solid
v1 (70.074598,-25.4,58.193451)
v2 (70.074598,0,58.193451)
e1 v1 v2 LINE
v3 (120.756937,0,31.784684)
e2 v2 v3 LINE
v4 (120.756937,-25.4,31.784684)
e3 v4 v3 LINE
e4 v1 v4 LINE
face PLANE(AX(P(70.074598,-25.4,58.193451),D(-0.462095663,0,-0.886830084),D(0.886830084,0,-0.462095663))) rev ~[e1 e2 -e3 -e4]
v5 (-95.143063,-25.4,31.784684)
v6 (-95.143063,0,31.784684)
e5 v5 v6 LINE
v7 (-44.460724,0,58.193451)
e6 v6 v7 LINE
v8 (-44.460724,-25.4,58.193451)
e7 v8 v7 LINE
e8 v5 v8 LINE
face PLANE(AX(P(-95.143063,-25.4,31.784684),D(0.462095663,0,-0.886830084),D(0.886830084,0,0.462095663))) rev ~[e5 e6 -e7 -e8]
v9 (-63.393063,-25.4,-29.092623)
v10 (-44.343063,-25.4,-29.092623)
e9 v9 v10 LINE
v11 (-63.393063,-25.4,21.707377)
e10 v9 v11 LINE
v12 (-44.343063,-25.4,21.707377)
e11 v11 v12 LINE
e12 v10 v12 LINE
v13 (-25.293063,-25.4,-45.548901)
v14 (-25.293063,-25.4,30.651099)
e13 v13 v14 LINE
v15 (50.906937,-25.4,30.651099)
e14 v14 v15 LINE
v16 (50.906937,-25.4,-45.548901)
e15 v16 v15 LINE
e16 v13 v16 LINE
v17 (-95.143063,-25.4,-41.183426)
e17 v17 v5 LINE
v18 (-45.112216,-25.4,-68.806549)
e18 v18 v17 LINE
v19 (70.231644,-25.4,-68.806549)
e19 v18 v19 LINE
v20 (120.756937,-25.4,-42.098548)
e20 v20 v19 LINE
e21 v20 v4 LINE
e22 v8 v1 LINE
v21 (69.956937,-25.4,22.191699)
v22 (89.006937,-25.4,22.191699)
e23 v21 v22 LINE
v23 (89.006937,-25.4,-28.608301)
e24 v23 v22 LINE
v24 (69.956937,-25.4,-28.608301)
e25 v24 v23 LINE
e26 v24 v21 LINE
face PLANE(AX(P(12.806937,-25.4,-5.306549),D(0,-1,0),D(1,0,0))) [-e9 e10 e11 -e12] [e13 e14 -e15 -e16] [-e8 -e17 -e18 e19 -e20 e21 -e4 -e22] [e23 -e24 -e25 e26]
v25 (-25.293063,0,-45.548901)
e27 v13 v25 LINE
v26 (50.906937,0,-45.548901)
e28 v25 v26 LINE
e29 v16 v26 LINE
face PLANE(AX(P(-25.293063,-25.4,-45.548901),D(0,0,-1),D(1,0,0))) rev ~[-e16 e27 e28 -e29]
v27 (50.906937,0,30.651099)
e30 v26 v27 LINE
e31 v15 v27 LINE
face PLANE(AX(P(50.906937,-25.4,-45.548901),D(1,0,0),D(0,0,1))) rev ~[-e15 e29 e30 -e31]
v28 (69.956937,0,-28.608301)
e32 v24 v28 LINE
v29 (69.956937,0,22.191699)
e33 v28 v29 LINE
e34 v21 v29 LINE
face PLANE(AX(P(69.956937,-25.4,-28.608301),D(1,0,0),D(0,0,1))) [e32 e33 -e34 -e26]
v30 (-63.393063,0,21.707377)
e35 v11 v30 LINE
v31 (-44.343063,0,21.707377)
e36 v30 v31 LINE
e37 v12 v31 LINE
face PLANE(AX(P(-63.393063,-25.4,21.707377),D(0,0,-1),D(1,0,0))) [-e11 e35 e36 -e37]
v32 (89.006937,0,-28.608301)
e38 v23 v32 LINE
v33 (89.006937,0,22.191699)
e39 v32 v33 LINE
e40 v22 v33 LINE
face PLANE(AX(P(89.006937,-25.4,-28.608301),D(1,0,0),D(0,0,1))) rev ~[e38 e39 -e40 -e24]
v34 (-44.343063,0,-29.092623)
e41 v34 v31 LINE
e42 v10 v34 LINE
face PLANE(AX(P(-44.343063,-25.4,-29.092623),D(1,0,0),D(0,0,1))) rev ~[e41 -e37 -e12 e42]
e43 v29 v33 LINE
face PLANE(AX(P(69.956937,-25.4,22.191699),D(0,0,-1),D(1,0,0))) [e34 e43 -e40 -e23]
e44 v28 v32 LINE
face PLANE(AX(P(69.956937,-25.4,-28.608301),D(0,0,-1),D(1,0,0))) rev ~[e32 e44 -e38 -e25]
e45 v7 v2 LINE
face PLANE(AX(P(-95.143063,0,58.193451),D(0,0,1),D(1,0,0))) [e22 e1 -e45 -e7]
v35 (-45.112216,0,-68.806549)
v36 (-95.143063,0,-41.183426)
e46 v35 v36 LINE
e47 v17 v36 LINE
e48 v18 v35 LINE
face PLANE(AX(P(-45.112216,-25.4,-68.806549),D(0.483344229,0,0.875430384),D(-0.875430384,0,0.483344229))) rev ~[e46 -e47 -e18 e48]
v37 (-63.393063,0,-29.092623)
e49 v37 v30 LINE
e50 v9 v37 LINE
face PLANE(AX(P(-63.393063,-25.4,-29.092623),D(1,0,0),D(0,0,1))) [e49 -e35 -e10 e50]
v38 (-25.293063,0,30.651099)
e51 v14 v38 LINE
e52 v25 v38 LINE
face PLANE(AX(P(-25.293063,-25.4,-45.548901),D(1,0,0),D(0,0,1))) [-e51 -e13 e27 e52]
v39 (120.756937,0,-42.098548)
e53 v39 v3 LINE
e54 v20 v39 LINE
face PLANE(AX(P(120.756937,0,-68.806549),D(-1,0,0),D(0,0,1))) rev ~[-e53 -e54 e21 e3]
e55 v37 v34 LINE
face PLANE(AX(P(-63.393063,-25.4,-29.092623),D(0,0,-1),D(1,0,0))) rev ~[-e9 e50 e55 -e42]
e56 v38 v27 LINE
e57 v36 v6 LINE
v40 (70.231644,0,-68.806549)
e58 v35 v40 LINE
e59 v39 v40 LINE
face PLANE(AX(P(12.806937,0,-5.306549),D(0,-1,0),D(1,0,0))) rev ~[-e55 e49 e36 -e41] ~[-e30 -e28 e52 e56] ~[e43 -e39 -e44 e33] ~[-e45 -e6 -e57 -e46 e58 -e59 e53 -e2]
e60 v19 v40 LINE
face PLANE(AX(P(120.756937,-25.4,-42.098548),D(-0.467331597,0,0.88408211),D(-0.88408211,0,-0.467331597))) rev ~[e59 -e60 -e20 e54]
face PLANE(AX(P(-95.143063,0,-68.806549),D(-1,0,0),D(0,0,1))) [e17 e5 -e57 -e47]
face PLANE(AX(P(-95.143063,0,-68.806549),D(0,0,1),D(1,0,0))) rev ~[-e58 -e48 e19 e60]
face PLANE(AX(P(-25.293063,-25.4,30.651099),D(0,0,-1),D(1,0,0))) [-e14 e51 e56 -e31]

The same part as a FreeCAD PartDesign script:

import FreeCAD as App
import Part
import Sketcher

V = App.Vector
Q = App.Units.Quantity


def add_polygon(sketch, points):
    """Adds a closed chain of lines whose ends are joined by coincident constraints."""
    first, n = sketch.GeometryCount, len(points)
    for a, b in zip(points, points[1:] + points[:1]):
        sketch.addGeometry(Part.LineSegment(App.Vector(*a, 0), App.Vector(*b, 0)), False)
    for i in range(n):
        sketch.addConstraint(Sketcher.Constraint("Coincident", first + i, 2, first + (i + 1) % n, 1))

doc = App.newDocument("Part")
body = doc.addObject("PartDesign::Body", "Body")

# Sketch on XZ plane
sketch1 = doc.addObject("Sketcher::SketchObject", "Sketch")
body.addObject(sketch1)
sketch1.AttachmentSupport = (doc.XZ_Plane, [""])
sketch1.MapMode = "FlatFace"
add_polygon(sketch1, [(-95.143063, 58.193451), (-95.143063, -68.806549), (120.756937, -68.806549), (120.756937, 58.193451)])  # lines 0-3
sketch1.addConstraint([
    Sketcher.Constraint("Vertical", 0),
    Sketcher.Constraint("Horizontal", 1),
    Sketcher.Constraint("Vertical", 2),
    Sketcher.Constraint("Horizontal", 3),
    Sketcher.Constraint("DistanceY", 0, 2, 0, 1, Q("5 in")),
    Sketcher.Constraint("DistanceX", 1, 1, 1, 2, Q("8.5 in")),
    Sketcher.Constraint("DistanceY", 0, 2, -1, 1, Q("68.806549 mm")),
    Sketcher.Constraint("DistanceX", 0, 2, -1, 1, Q("95.143063 mm")),
])
pad1 = doc.addObject("PartDesign::Pad", "Pad")
body.addObject(pad1)
pad1.Profile = sketch1
pad1.Length = Q("1 in")

# Sketch on XZ plane
sketch2 = doc.addObject("Sketcher::SketchObject", "Sketch001")
body.addObject(sketch2)
sketch2.AttachmentSupport = (doc.XZ_Plane, [""])
sketch2.MapMode = "FlatFace"
sketch2.AttachmentOffset = App.Placement(V(0, 0, 1 * 25.4), App.Rotation())
add_polygon(sketch2, [(-95.143063, 58.193451), (-95.143063, 31.784684), (-44.460724, 58.193451)])  # lines 0-2
sketch2.addConstraint([
    Sketcher.Constraint("Vertical", 0),
    Sketcher.Constraint("Horizontal", 2),
    Sketcher.Constraint("Distance", 1, Q("2.25 in")),
    Sketcher.Constraint("DistanceX", 2, 2, 2, 1, Q("50.682339 mm")),
    Sketcher.Constraint("DistanceY", -1, 1, 1, 2, Q("58.193451 mm")),
    Sketcher.Constraint("DistanceX", 0, 2, -1, 1, Q("95.143063 mm")),
])
pocket1 = doc.addObject("PartDesign::Pocket", "Pocket")
body.addObject(pocket1)
pocket1.Profile = sketch2
pocket1.Length = Q("1 in")

# Sketch on XZ plane
sketch3 = doc.addObject("Sketcher::SketchObject", "Sketch002")
body.addObject(sketch3)
sketch3.AttachmentSupport = (doc.XZ_Plane, [""])
sketch3.MapMode = "FlatFace"
sketch3.AttachmentOffset = App.Placement(V(0, 0, 1 * 25.4), App.Rotation())
add_polygon(sketch3, [(-45.112216, -68.806549), (-95.143063, -41.183426), (-95.143063, -68.806549)])  # lines 0-2
sketch3.addConstraint([
    Sketcher.Constraint("Vertical", 1),
    Sketcher.Constraint("Horizontal", 2),
    Sketcher.Constraint("Distance", 0, Q("2.25 in")),
    Sketcher.Constraint("DistanceX", 2, 1, 2, 2, Q("50.030847 mm")),
    Sketcher.Constraint("DistanceY", 1, 2, -1, 1, Q("68.806549 mm")),
    Sketcher.Constraint("DistanceX", 0, 2, -1, 1, Q("95.143063 mm")),
])
pocket2 = doc.addObject("PartDesign::Pocket", "Pocket001")
body.addObject(pocket2)
pocket2.Profile = sketch3
pocket2.Length = Q("1 in")

# Sketch on XZ plane
sketch4 = doc.addObject("Sketcher::SketchObject", "Sketch003")
body.addObject(sketch4)
sketch4.AttachmentSupport = (doc.XZ_Plane, [""])
sketch4.MapMode = "FlatFace"
sketch4.AttachmentOffset = App.Placement(V(0, 0, 1 * 25.4), App.Rotation())
add_polygon(sketch4, [(120.756937, -42.098548), (70.231644, -68.806549), (120.756937, -68.806549)])  # lines 0-2
sketch4.addConstraint([
    Sketcher.Constraint("Horizontal", 1),
    Sketcher.Constraint("Vertical", 2),
    Sketcher.Constraint("Distance", 0, Q("2.25 in")),
    Sketcher.Constraint("DistanceY", 2, 1, 2, 2, Q("26.708001 mm")),
    Sketcher.Constraint("DistanceY", 0, 2, -1, 1, Q("68.806549 mm")),
    Sketcher.Constraint("DistanceX", -1, 1, 0, 2, Q("70.231644 mm")),
])
pocket3 = doc.addObject("PartDesign::Pocket", "Pocket002")
body.addObject(pocket3)
pocket3.Profile = sketch4
pocket3.Length = Q("1 in")

# Sketch on XZ plane
sketch5 = doc.addObject("Sketcher::SketchObject", "Sketch004")
body.addObject(sketch5)
sketch5.AttachmentSupport = (doc.XZ_Plane, [""])
sketch5.MapMode = "FlatFace"
sketch5.AttachmentOffset = App.Placement(V(0, 0, 1 * 25.4), App.Rotation())
add_polygon(sketch5, [(120.756937, 58.193451), (70.074598, 58.193451), (120.756937, 31.784684)])  # lines 0-2
sketch5.addConstraint([
    Sketcher.Constraint("Horizontal", 0),
    Sketcher.Constraint("Vertical", 2),
    Sketcher.Constraint("Distance", 1, Q("2.25 in")),
    Sketcher.Constraint("DistanceX", 0, 2, 0, 1, Q("50.682339 mm")),
    Sketcher.Constraint("DistanceY", -1, 1, 0, 2, Q("58.193451 mm")),
    Sketcher.Constraint("DistanceX", -1, 1, 0, 2, Q("70.074598 mm")),
])
pocket4 = doc.addObject("PartDesign::Pocket", "Pocket003")
body.addObject(pocket4)
pocket4.Profile = sketch5
pocket4.Length = Q("1 in")

# Sketch on XZ plane
sketch6 = doc.addObject("Sketcher::SketchObject", "Sketch005")
body.addObject(sketch6)
sketch6.AttachmentSupport = (doc.XZ_Plane, [""])
sketch6.MapMode = "FlatFace"
sketch6.AttachmentOffset = App.Placement(V(0, 0, 1 * 25.4), App.Rotation())
add_polygon(sketch6, [(-25.293063, 30.651099), (-25.293063, -45.548901), (50.906937, -45.548901), (50.906937, 30.651099)])  # lines 0-3
sketch6.addConstraint([
    Sketcher.Constraint("Vertical", 0),
    Sketcher.Constraint("Horizontal", 1),
    Sketcher.Constraint("Vertical", 2),
    Sketcher.Constraint("Horizontal", 3),
    Sketcher.Constraint("Equal", 3, 0),
    Sketcher.Constraint("DistanceX", 1, 1, 1, 2, Q("3 in")),
    Sketcher.Constraint("DistanceY", 0, 2, -1, 1, Q("45.548901 mm")),
    Sketcher.Constraint("DistanceX", 0, 2, -1, 1, Q("25.293063 mm")),
])
pocket5 = doc.addObject("PartDesign::Pocket", "Pocket004")
body.addObject(pocket5)
pocket5.Profile = sketch6
pocket5.Length = Q("1 in")

# Sketch on XZ plane
sketch7 = doc.addObject("Sketcher::SketchObject", "Sketch006")
body.addObject(sketch7)
sketch7.AttachmentSupport = (doc.XZ_Plane, [""])
sketch7.MapMode = "FlatFace"
sketch7.AttachmentOffset = App.Placement(V(0, 0, 1 * 25.4), App.Rotation())
add_polygon(sketch7, [(-63.393063, 21.707377), (-63.393063, -29.092623), (-44.343063, -29.092623), (-44.343063, 21.707377)])  # lines 0-3
add_polygon(sketch7, [(69.956937, 22.191699), (69.956937, -28.608301), (89.006937, -28.608301), (89.006937, 22.191699)])  # lines 4-7
sketch7.addConstraint([
    Sketcher.Constraint("Vertical", 0),
    Sketcher.Constraint("Horizontal", 1),
    Sketcher.Constraint("Vertical", 2),
    Sketcher.Constraint("Horizontal", 3),
    Sketcher.Constraint("Vertical", 4),
    Sketcher.Constraint("Horizontal", 5),
    Sketcher.Constraint("Vertical", 6),
    Sketcher.Constraint("Horizontal", 7),
    Sketcher.Constraint("Equal", 3, 5),
    Sketcher.Constraint("Equal", 2, 4),
    Sketcher.Constraint("DistanceY", 0, 2, 0, 1, Q("2 in")),
    Sketcher.Constraint("DistanceX", 0, 2, 5, 2, Q("6 in")),
    Sketcher.Constraint("DistanceX", 1, 1, 1, 2, Q("0.75 in")),
    Sketcher.Constraint("DistanceY", 4, 2, -1, 1, Q("28.608301 mm")),
    Sketcher.Constraint("DistanceY", 1, 2, 4, 2, Q("0.484322 mm")),
    Sketcher.Constraint("DistanceX", 0, 2, -1, 1, Q("63.393063 mm")),
])
pocket6 = doc.addObject("PartDesign::Pocket", "Pocket005")
body.addObject(pocket6)
pocket6.Profile = sketch7
pocket6.Length = Q("1 in")

doc.recompute()
